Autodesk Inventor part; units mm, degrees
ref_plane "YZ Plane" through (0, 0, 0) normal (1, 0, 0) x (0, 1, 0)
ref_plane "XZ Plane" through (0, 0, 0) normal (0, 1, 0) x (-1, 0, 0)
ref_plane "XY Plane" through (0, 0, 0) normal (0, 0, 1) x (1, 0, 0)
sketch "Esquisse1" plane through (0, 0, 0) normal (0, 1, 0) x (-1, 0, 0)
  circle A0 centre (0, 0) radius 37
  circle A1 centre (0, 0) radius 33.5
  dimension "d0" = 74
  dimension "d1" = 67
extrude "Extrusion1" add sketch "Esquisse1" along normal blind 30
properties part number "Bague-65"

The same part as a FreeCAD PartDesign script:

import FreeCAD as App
import Part
import Sketcher

V = App.Vector
Q = App.Units.Quantity

doc = App.newDocument("Part")
body = doc.addObject("PartDesign::Body", "Body")

sketch1 = doc.addObject("Sketcher::SketchObject", "Sketch")
body.addObject(sketch1)
sketch1.AttachmentSupport = (doc.XZ_Plane, [""])
sketch1.MapMode = "FlatFace"
sketch1.addGeometry(Part.Circle(V(0, 0, 0), V(0, 0, 1), 37), False)
sketch1.addGeometry(Part.Circle(V(0, 0, 0), V(0, 0, 1), 34), False)
sketch1.addConstraint(Sketcher.Constraint("Coincident", 0, 3, -1, 1))
sketch1.addConstraint(Sketcher.Constraint("Coincident", 1, 3, -1, 1))
sketch1.addConstraint(Sketcher.Constraint("Diameter", 0, Q("74 mm")))
sketch1.addConstraint(Sketcher.Constraint("Diameter", 1, Q("67 mm")))
pad1 = doc.addObject("PartDesign::Pad", "Pad")
body.addObject(pad1)
pad1.Profile = sketch1
pad1.Length = 30
pad1.Reversed = True

doc.recompute()
